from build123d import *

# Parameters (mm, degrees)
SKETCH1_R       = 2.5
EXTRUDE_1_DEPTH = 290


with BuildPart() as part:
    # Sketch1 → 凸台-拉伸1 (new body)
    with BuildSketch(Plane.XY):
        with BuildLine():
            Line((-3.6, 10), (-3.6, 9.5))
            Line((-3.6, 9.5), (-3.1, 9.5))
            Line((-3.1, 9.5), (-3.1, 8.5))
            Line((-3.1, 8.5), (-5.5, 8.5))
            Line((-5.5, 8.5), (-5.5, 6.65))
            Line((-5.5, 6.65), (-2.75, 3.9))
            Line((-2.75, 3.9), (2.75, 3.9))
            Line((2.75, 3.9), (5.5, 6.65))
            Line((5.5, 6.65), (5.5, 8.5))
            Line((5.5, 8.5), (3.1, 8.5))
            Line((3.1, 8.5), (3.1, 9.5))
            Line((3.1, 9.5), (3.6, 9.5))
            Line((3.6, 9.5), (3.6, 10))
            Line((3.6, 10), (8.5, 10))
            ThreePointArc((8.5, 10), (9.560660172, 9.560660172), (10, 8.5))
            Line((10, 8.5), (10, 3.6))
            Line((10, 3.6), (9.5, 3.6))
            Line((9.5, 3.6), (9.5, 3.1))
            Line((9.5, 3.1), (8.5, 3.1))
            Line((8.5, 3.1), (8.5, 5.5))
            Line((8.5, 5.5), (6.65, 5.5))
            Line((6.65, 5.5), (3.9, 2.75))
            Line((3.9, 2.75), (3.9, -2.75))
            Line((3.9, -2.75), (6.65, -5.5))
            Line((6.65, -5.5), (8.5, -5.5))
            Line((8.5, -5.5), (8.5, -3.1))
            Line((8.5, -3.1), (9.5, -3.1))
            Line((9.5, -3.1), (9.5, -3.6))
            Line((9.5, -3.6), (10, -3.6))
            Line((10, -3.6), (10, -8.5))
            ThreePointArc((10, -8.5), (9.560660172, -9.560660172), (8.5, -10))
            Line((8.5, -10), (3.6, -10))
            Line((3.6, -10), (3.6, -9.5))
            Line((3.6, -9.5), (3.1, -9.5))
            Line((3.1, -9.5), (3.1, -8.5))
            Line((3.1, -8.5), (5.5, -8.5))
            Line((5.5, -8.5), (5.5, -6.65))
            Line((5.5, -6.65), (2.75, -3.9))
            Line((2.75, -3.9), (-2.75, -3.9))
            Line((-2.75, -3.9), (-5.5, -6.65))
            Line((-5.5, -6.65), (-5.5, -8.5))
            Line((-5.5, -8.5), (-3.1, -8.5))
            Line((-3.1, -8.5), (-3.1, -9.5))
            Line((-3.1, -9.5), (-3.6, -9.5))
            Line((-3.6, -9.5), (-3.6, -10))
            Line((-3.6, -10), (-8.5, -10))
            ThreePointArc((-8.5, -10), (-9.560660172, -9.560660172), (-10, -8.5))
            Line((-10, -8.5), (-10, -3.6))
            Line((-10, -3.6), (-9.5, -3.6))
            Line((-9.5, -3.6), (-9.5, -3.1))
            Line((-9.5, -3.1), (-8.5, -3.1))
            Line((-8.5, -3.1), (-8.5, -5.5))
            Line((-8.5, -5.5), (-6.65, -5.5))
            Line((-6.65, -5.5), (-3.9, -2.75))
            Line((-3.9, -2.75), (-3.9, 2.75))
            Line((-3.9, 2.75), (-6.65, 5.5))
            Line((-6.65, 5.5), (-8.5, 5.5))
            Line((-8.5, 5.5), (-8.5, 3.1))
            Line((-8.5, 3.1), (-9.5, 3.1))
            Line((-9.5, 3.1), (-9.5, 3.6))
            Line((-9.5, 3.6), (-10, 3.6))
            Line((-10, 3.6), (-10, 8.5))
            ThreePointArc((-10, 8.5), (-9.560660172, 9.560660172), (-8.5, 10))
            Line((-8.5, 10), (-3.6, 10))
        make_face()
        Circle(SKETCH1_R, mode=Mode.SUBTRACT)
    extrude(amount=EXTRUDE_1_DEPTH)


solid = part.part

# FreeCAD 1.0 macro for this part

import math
import FreeCAD as App
import Part
import Sketcher

V = App.Vector

doc = App.newDocument("Part")
params = doc.addObject("Spreadsheet::Sheet", "Params")
for row, (alias, value) in enumerate([
    ("sketch1_diameter", "5 mm"),
    ("sketch1_radius", "1.5 mm"),
    ("sketch1_width", "1 mm"),
    ("sketch1_width2", "4.9 mm"),
    ("sketch1_width3", "2.4 mm"),
    ("pad1_length", "290 mm"),
], start=1):
    params.set(f"A{row}", alias)
    params.set(f"B{row}", "=" + value)
    params.setAlias(f"B{row}", alias)

body = doc.addObject("PartDesign::Body", "Body")

# Sketch on XY plane
sketch1 = doc.addObject("Sketcher::SketchObject", "Sketch")
body.addObject(sketch1)
sketch1.AttachmentSupport = (doc.XY_Plane, [""])
sketch1.MapMode = "FlatFace"
sketch1.addGeometry(Part.LineSegment(V(-3.6, 9.5, 0), V(-3.6, 10, 0)), False)
sketch1.addGeometry(Part.LineSegment(V(-3.6, 10, 0), V(-8.5, 10, 0)), False)
sketch1.addGeometry(Part.ArcOfCircle(Part.Circle(V(-8.5, 8.5, 0), V(0, 0, 1), 1.5), math.radians(90), math.radians(180)), False)
sketch1.addGeometry(Part.LineSegment(V(-10, 8.5, 0), V(-10, 3.6, 0)), False)
sketch1.addGeometry(Part.LineSegment(V(-10, 3.6, 0), V(-9.5, 3.6, 0)), False)
sketch1.addGeometry(Part.LineSegment(V(-9.5, 3.6, 0), V(-9.5, 3.1, 0)), False)
sketch1.addGeometry(Part.LineSegment(V(-9.5, 3.1, 0), V(-8.5, 3.1, 0)), False)
sketch1.addGeometry(Part.LineSegment(V(-8.5, 3.1, 0), V(-8.5, 5.5, 0)), False)
sketch1.addGeometry(Part.LineSegment(V(-8.5, 5.5, 0), V(-6.65, 5.5, 0)), False)
sketch1.addGeometry(Part.LineSegment(V(-6.65, 5.5, 0), V(-3.9, 2.75, 0)), False)
sketch1.addGeometry(Part.LineSegment(V(-3.9, 2.75, 0), V(-3.9, -2.75, 0)), False)
sketch1.addGeometry(Part.LineSegment(V(-3.9, -2.75, 0), V(-6.65, -5.5, 0)), False)
sketch1.addGeometry(Part.LineSegment(V(-6.65, -5.5, 0), V(-8.5, -5.5, 0)), False)
sketch1.addGeometry(Part.LineSegment(V(-8.5, -5.5, 0), V(-8.5, -3.1, 0)), False)
sketch1.addGeometry(Part.LineSegment(V(-8.5, -3.1, 0), V(-9.5, -3.1, 0)), False)
sketch1.addGeometry(Part.LineSegment(V(-9.5, -3.1, 0), V(-9.5, -3.6, 0)), False)
sketch1.addGeometry(Part.LineSegment(V(-9.5, -3.6, 0), V(-10, -3.6, 0)), False)
sketch1.addGeometry(Part.LineSegment(V(-10, -3.6, 0), V(-10, -8.5, 0)), False)
sketch1.addGeometry(Part.ArcOfCircle(Part.Circle(V(-8.5, -8.5, 0), V(0, 0, 1), 1.5), math.radians(180), math.radians(270)), False)
sketch1.addGeometry(Part.LineSegment(V(-8.5, -10, 0), V(-3.6, -10, 0)), False)
sketch1.addGeometry(Part.LineSegment(V(-3.6, -10, 0), V(-3.6, -9.5, 0)), False)
sketch1.addGeometry(Part.LineSegment(V(-3.6, -9.5, 0), V(-3.1, -9.5, 0)), False)
sketch1.addGeometry(Part.LineSegment(V(-3.1, -9.5, 0), V(-3.1, -8.5, 0)), False)
sketch1.addGeometry(Part.LineSegment(V(-3.1, -8.5, 0), V(-5.5, -8.5, 0)), False)
sketch1.addGeometry(Part.LineSegment(V(-5.5, -8.5, 0), V(-5.5, -6.65, 0)), False)
sketch1.addGeometry(Part.LineSegment(V(-5.5, -6.65, 0), V(-2.75, -3.9, 0)), False)
sketch1.addGeometry(Part.LineSegment(V(-2.75, -3.9, 0), V(2.75, -3.9, 0)), False)
sketch1.addGeometry(Part.LineSegment(V(2.75, -3.9, 0), V(5.5, -6.65, 0)), False)
sketch1.addGeometry(Part.LineSegment(V(5.5, -6.65, 0), V(5.5, -8.5, 0)), False)
sketch1.addGeometry(Part.LineSegment(V(5.5, -8.5, 0), V(3.1, -8.5, 0)), False)
sketch1.addGeometry(Part.LineSegment(V(3.1, -8.5, 0), V(3.1, -9.5, 0)), False)
sketch1.addGeometry(Part.LineSegment(V(3.1, -9.5, 0), V(3.6, -9.5, 0)), False)
sketch1.addGeometry(Part.LineSegment(V(3.6, -9.5, 0), V(3.6, -10, 0)), False)
sketch1.addGeometry(Part.LineSegment(V(3.6, -10, 0), V(8.5, -10, 0)), False)
sketch1.addGeometry(Part.ArcOfCircle(Part.Circle(V(8.5, -8.5, 0), V(0, 0, 1), 1.5), math.radians(-90), math.radians(0)), False)
sketch1.addGeometry(Part.LineSegment(V(10, -8.5, 0), V(10, -3.6, 0)), False)
sketch1.addGeometry(Part.LineSegment(V(10, -3.6, 0), V(9.5, -3.6, 0)), False)
sketch1.addGeometry(Part.LineSegment(V(9.5, -3.6, 0), V(9.5, -3.1, 0)), False)
sketch1.addGeometry(Part.LineSegment(V(9.5, -3.1, 0), V(8.5, -3.1, 0)), False)
sketch1.addGeometry(Part.LineSegment(V(8.5, -3.1, 0), V(8.5, -5.5, 0)), False)
sketch1.addGeometry(Part.LineSegment(V(8.5, -5.5, 0), V(6.65, -5.5, 0)), False)
sketch1.addGeometry(Part.LineSegment(V(6.65, -5.5, 0), V(3.9, -2.75, 0)), False)
sketch1.addGeometry(Part.LineSegment(V(3.9, -2.75, 0), V(3.9, 2.75, 0)), False)
sketch1.addGeometry(Part.LineSegment(V(3.9, 2.75, 0), V(6.65, 5.5, 0)), False)
sketch1.addGeometry(Part.LineSegment(V(6.65, 5.5, 0), V(8.5, 5.5, 0)), False)
sketch1.addGeometry(Part.LineSegment(V(8.5, 5.5, 0), V(8.5, 3.1, 0)), False)
sketch1.addGeometry(Part.LineSegment(V(8.5, 3.1, 0), V(9.5, 3.1, 0)), False)
sketch1.addGeometry(Part.LineSegment(V(9.5, 3.1, 0), V(9.5, 3.6, 0)), False)
sketch1.addGeometry(Part.LineSegment(V(9.5, 3.6, 0), V(10, 3.6, 0)), False)
sketch1.addGeometry(Part.LineSegment(V(10, 3.6, 0), V(10, 8.5, 0)), False)
sketch1.addGeometry(Part.ArcOfCircle(Part.Circle(V(8.5, 8.5, 0), V(0, 0, 1), 1.5), math.radians(0), math.radians(90)), False)
sketch1.addGeometry(Part.LineSegment(V(8.5, 10, 0), V(3.6, 10, 0)), False)
sketch1.addGeometry(Part.LineSegment(V(3.6, 10, 0), V(3.6, 9.5, 0)), False)
sketch1.addGeometry(Part.LineSegment(V(3.6, 9.5, 0), V(3.1, 9.5, 0)), False)
sketch1.addGeometry(Part.LineSegment(V(3.1, 9.5, 0), V(3.1, 8.5, 0)), False)
sketch1.addGeometry(Part.LineSegment(V(3.1, 8.5, 0), V(5.5, 8.5, 0)), False)
sketch1.addGeometry(Part.LineSegment(V(5.5, 8.5, 0), V(5.5, 6.65, 0)), False)
sketch1.addGeometry(Part.LineSegment(V(5.5, 6.65, 0), V(2.75, 3.9, 0)), False)
sketch1.addGeometry(Part.LineSegment(V(2.75, 3.9, 0), V(-2.75, 3.9, 0)), False)
sketch1.addGeometry(Part.LineSegment(V(-2.75, 3.9, 0), V(-5.5, 6.65, 0)), False)
sketch1.addGeometry(Part.LineSegment(V(-5.5, 6.65, 0), V(-5.5, 8.5, 0)), False)
sketch1.addGeometry(Part.LineSegment(V(-5.5, 8.5, 0), V(-3.1, 8.5, 0)), False)
sketch1.addGeometry(Part.LineSegment(V(-3.1, 8.5, 0), V(-3.1, 9.5, 0)), False)
sketch1.addGeometry(Part.LineSegment(V(-3.1, 9.5, 0), V(-3.6, 9.5, 0)), False)
sketch1.addGeometry(Part.Circle(V(0, 0, 0), V(0, 0, 1), 2.5), False)
sketch1.addConstraint(Sketcher.Constraint("Coincident", 0, 2, 1, 1))
sketch1.addConstraint(Sketcher.Constraint("Tangent", 1, 2, 2, 1))
sketch1.addConstraint(Sketcher.Constraint("Tangent", 2, 2, 3, 1))
sketch1.addConstraint(Sketcher.Constraint("Coincident", 3, 2, 4, 1))
sketch1.addConstraint(Sketcher.Constraint("Coincident", 4, 2, 5, 1))
sketch1.addConstraint(Sketcher.Constraint("Coincident", 5, 2, 6, 1))
sketch1.addConstraint(Sketcher.Constraint("Coincident", 6, 2, 7, 1))
sketch1.addConstraint(Sketcher.Constraint("Coincident", 7, 2, 8, 1))
sketch1.addConstraint(Sketcher.Constraint("Coincident", 8, 2, 9, 1))
sketch1.addConstraint(Sketcher.Constraint("Coincident", 9, 2, 10, 1))
sketch1.addConstraint(Sketcher.Constraint("Coincident", 10, 2, 11, 1))
sketch1.addConstraint(Sketcher.Constraint("Coincident", 11, 2, 12, 1))
sketch1.addConstraint(Sketcher.Constraint("Coincident", 12, 2, 13, 1))
sketch1.addConstraint(Sketcher.Constraint("Coincident", 13, 2, 14, 1))
sketch1.addConstraint(Sketcher.Constraint("Coincident", 14, 2, 15, 1))
sketch1.addConstraint(Sketcher.Constraint("Coincident", 15, 2, 16, 1))
sketch1.addConstraint(Sketcher.Constraint("Coincident", 16, 2, 17, 1))
sketch1.addConstraint(Sketcher.Constraint("Tangent", 17, 2, 18, 1))
sketch1.addConstraint(Sketcher.Constraint("Tangent", 18, 2, 19, 1))
sketch1.addConstraint(Sketcher.Constraint("Coincident", 19, 2, 20, 1))
sketch1.addConstraint(Sketcher.Constraint("Coincident", 20, 2, 21, 1))
sketch1.addConstraint(Sketcher.Constraint("Coincident", 21, 2, 22, 1))
sketch1.addConstraint(Sketcher.Constraint("Coincident", 22, 2, 23, 1))
sketch1.addConstraint(Sketcher.Constraint("Coincident", 23, 2, 24, 1))
sketch1.addConstraint(Sketcher.Constraint("Coincident", 24, 2, 25, 1))
sketch1.addConstraint(Sketcher.Constraint("Coincident", 25, 2, 26, 1))
sketch1.addConstraint(Sketcher.Constraint("Coincident", 26, 2, 27, 1))
sketch1.addConstraint(Sketcher.Constraint("Coincident", 27, 2, 28, 1))
sketch1.addConstraint(Sketcher.Constraint("Coincident", 28, 2, 29, 1))
sketch1.addConstraint(Sketcher.Constraint("Coincident", 29, 2, 30, 1))
sketch1.addConstraint(Sketcher.Constraint("Coincident", 30, 2, 31, 1))
sketch1.addConstraint(Sketcher.Constraint("Coincident", 31, 2, 32, 1))
sketch1.addConstraint(Sketcher.Constraint("Coincident", 32, 2, 33, 1))
sketch1.addConstraint(Sketcher.Constraint("Tangent", 33, 2, 34, 1))
sketch1.addConstraint(Sketcher.Constraint("Tangent", 34, 2, 35, 1))
sketch1.addConstraint(Sketcher.Constraint("Coincident", 35, 2, 36, 1))
sketch1.addConstraint(Sketcher.Constraint("Coincident", 36, 2, 37, 1))
sketch1.addConstraint(Sketcher.Constraint("Coincident", 37, 2, 38, 1))
sketch1.addConstraint(Sketcher.Constraint("Coincident", 38, 2, 39, 1))
sketch1.addConstraint(Sketcher.Constraint("Coincident", 39, 2, 40, 1))
sketch1.addConstraint(Sketcher.Constraint("Coincident", 40, 2, 41, 1))
sketch1.addConstraint(Sketcher.Constraint("Coincident", 41, 2, 42, 1))
sketch1.addConstraint(Sketcher.Constraint("Coincident", 42, 2, 43, 1))
sketch1.addConstraint(Sketcher.Constraint("Coincident", 43, 2, 44, 1))
sketch1.addConstraint(Sketcher.Constraint("Coincident", 44, 2, 45, 1))
sketch1.addConstraint(Sketcher.Constraint("Coincident", 45, 2, 46, 1))
sketch1.addConstraint(Sketcher.Constraint("Coincident", 46, 2, 47, 1))
sketch1.addConstraint(Sketcher.Constraint("Coincident", 47, 2, 48, 1))
sketch1.addConstraint(Sketcher.Constraint("Coincident", 48, 2, 49, 1))
sketch1.addConstraint(Sketcher.Constraint("Tangent", 49, 2, 50, 1))
sketch1.addConstraint(Sketcher.Constraint("Tangent", 50, 2, 51, 1))
sketch1.addConstraint(Sketcher.Constraint("Coincident", 51, 2, 52, 1))
sketch1.addConstraint(Sketcher.Constraint("Coincident", 52, 2, 53, 1))
sketch1.addConstraint(Sketcher.Constraint("Coincident", 53, 2, 54, 1))
sketch1.addConstraint(Sketcher.Constraint("Coincident", 54, 2, 55, 1))
sketch1.addConstraint(Sketcher.Constraint("Coincident", 55, 2, 56, 1))
sketch1.addConstraint(Sketcher.Constraint("Coincident", 56, 2, 57, 1))
sketch1.addConstraint(Sketcher.Constraint("Coincident", 57, 2, 58, 1))
sketch1.addConstraint(Sketcher.Constraint("Coincident", 58, 2, 59, 1))
sketch1.addConstraint(Sketcher.Constraint("Coincident", 59, 2, 60, 1))
sketch1.addConstraint(Sketcher.Constraint("Coincident", 60, 2, 61, 1))
sketch1.addConstraint(Sketcher.Constraint("Coincident", 61, 2, 62, 1))
sketch1.addConstraint(Sketcher.Constraint("Coincident", 62, 2, 63, 1))
sketch1.addConstraint(Sketcher.Constraint("Coincident", 63, 2, 0, 1))
sketch1.addConstraint(Sketcher.Constraint("Vertical", 0))
sketch1.addConstraint(Sketcher.Constraint("Horizontal", 1))
sketch1.addConstraint(Sketcher.Constraint("Vertical", 3))
sketch1.addConstraint(Sketcher.Constraint("Horizontal", 4))
sketch1.addConstraint(Sketcher.Constraint("Vertical", 5))
sketch1.addConstraint(Sketcher.Constraint("Horizontal", 6))
sketch1.addConstraint(Sketcher.Constraint("Vertical", 7))
sketch1.addConstraint(Sketcher.Constraint("Horizontal", 8))
sketch1.addConstraint(Sketcher.Constraint("Vertical", 10))
sketch1.addConstraint(Sketcher.Constraint("Horizontal", 12))
sketch1.addConstraint(Sketcher.Constraint("Vertical", 13))
sketch1.addConstraint(Sketcher.Constraint("Horizontal", 14))
sketch1.addConstraint(Sketcher.Constraint("Vertical", 15))
sketch1.addConstraint(Sketcher.Constraint("Horizontal", 16))
sketch1.addConstraint(Sketcher.Constraint("Vertical", 17))
sketch1.addConstraint(Sketcher.Constraint("Horizontal", 19))
sketch1.addConstraint(Sketcher.Constraint("Vertical", 20))
sketch1.addConstraint(Sketcher.Constraint("Horizontal", 21))
sketch1.addConstraint(Sketcher.Constraint("Vertical", 22))
sketch1.addConstraint(Sketcher.Constraint("Horizontal", 23))
sketch1.addConstraint(Sketcher.Constraint("Vertical", 24))
sketch1.addConstraint(Sketcher.Constraint("Horizontal", 26))
sketch1.addConstraint(Sketcher.Constraint("Vertical", 28))
sketch1.addConstraint(Sketcher.Constraint("Horizontal", 29))
sketch1.addConstraint(Sketcher.Constraint("Vertical", 30))
sketch1.addConstraint(Sketcher.Constraint("Horizontal", 31))
sketch1.addConstraint(Sketcher.Constraint("Vertical", 32))
sketch1.addConstraint(Sketcher.Constraint("Horizontal", 33))
sketch1.addConstraint(Sketcher.Constraint("Vertical", 35))
sketch1.addConstraint(Sketcher.Constraint("Horizontal", 36))
sketch1.addConstraint(Sketcher.Constraint("Vertical", 37))
sketch1.addConstraint(Sketcher.Constraint("Horizontal", 38))
sketch1.addConstraint(Sketcher.Constraint("Vertical", 39))
sketch1.addConstraint(Sketcher.Constraint("Horizontal", 40))
sketch1.addConstraint(Sketcher.Constraint("Vertical", 42))
sketch1.addConstraint(Sketcher.Constraint("Horizontal", 44))
sketch1.addConstraint(Sketcher.Constraint("Vertical", 45))
sketch1.addConstraint(Sketcher.Constraint("Horizontal", 46))
sketch1.addConstraint(Sketcher.Constraint("Vertical", 47))
sketch1.addConstraint(Sketcher.Constraint("Horizontal", 48))
sketch1.addConstraint(Sketcher.Constraint("Vertical", 49))
sketch1.addConstraint(Sketcher.Constraint("Horizontal", 51))
sketch1.addConstraint(Sketcher.Constraint("Vertical", 52))
sketch1.addConstraint(Sketcher.Constraint("Horizontal", 53))
sketch1.addConstraint(Sketcher.Constraint("Vertical", 54))
sketch1.addConstraint(Sketcher.Constraint("Horizontal", 55))
sketch1.addConstraint(Sketcher.Constraint("Vertical", 56))
sketch1.addConstraint(Sketcher.Constraint("Horizontal", 58))
sketch1.addConstraint(Sketcher.Constraint("Vertical", 60))
sketch1.addConstraint(Sketcher.Constraint("Horizontal", 61))
sketch1.addConstraint(Sketcher.Constraint("Vertical", 62))
sketch1.addConstraint(Sketcher.Constraint("Horizontal", 63))
sketch1.addConstraint(Sketcher.Constraint("Coincident", 64, 3, -1, 1))
sketch1.addConstraint(Sketcher.Constraint("Equal", 2, 18))
sketch1.addConstraint(Sketcher.Constraint("Equal", 18, 34))
sketch1.addConstraint(Sketcher.Constraint("Equal", 34, 50))
sketch1.addConstraint(Sketcher.Constraint("Symmetric", 2, 3, 34, 3, -1, 1))
sketch1.addConstraint(Sketcher.Constraint("Symmetric", 18, 3, 50, 3, -1, 1))
sketch1.addConstraint(Sketcher.Constraint("Symmetric", 4, 2, 36, 2, -1, 1))
sketch1.addConstraint(Sketcher.Constraint("Symmetric", 6, 2, 38, 2, -1, 1))
sketch1.addConstraint(Sketcher.Constraint("Symmetric", 8, 2, 40, 2, -1, 1))
sketch1.addConstraint(Sketcher.Constraint("Symmetric", 9, 2, 41, 2, -1, 1))
sketch1.addConstraint(Sketcher.Constraint("Symmetric", 11, 2, 43, 2, -1, 1))
sketch1.addConstraint(Sketcher.Constraint("Symmetric", 13, 2, 45, 2, -1, 1))
sketch1.addConstraint(Sketcher.Constraint("Symmetric", 15, 2, 47, 2, -1, 1))
sketch1.addConstraint(Sketcher.Constraint("Symmetric", 20, 2, 52, 2, -1, 1))
sketch1.addConstraint(Sketcher.Constraint("Symmetric", 22, 2, 54, 2, -1, 1))
sketch1.addConstraint(Sketcher.Constraint("Symmetric", 24, 2, 56, 2, -1, 1))
sketch1.addConstraint(Sketcher.Constraint("Symmetric", 25, 2, 57, 2, -1, 1))
sketch1.addConstraint(Sketcher.Constraint("Symmetric", 27, 2, 59, 2, -1, 1))
sketch1.addConstraint(Sketcher.Constraint("Symmetric", 29, 2, 61, 2, -1, 1))
sketch1.addConstraint(Sketcher.Constraint("Symmetric", 31, 2, 63, 2, -1, 1))
sketch1.addConstraint(Sketcher.Constraint("Symmetric", 18, 3, 34, 3, -2))
sketch1.addConstraint(Sketcher.Constraint("Symmetric", 24, 2, 27, 2, -2))
sketch1.addConstraint(Sketcher.Constraint("Symmetric", 22, 2, 29, 2, -2))
sketch1.addConstraint(Sketcher.Constraint("Symmetric", 20, 2, 31, 2, -2))
sketch1.addConstraint(Sketcher.Constraint("Symmetric", 15, 2, 36, 2, -2))
sketch1.addConstraint(Sketcher.Constraint("Symmetric", 13, 2, 38, 2, -2))
sketch1.addConstraint(Sketcher.Constraint("Symmetric", 11, 2, 40, 2, -2))
sketch1.addConstraint(Sketcher.Constraint("Perpendicular", 9, 11))
sketch1.addConstraint(Sketcher.Constraint("Parallel", 11, 25))
sketch1.addConstraint(Sketcher.Constraint("Perpendicular", 25, 27))
sketch1.addConstraint(Sketcher.Constraint("Perpendicular", 41, 43))
sketch1.addConstraint(Sketcher.Constraint("Perpendicular", 57, 59))
sketch1.addConstraint(Sketcher.Constraint("Horizontal", 17, 2, 22, 2))
sketch1.addConstraint(Sketcher.Constraint("Horizontal", 10, 2, 41, 2))
sketch1.addConstraint(Sketcher.Constraint("Vertical", 1, 2, 6, 2))
sketch1.addConstraint(Sketcher.Constraint("Equal", 16, 21))
sketch1.addConstraint(Sketcher.Constraint("Equal", 63, 0))
sketch1.addConstraint(Sketcher.Constraint("Equal", 51, 3))
sketch1.addConstraint(Sketcher.Constraint("Equal", 0, 5))
sketch1.addConstraint(Sketcher.Constraint("Equal", 61, 7))
sketch1.addConstraint(Sketcher.Constraint("Equal", 58, 10))
sketch1.addConstraint(Sketcher.Constraint("Equal", 44, 24))
sketch1.addConstraint(Sketcher.Constraint("Equal", 11, 25))
sketch1.addConstraint(Sketcher.Constraint("Diameter", 64, 5.0))
sketch1.addConstraint(Sketcher.Constraint("Radius", 2, 1.5))
sketch1.addConstraint(Sketcher.Constraint("DistanceX", 6, 1, 6, 2, 1.0))
sketch1.addConstraint(Sketcher.Constraint("DistanceX", 1, 2, 1, 1, 4.9))
sketch1.addConstraint(Sketcher.Constraint("DistanceX", 23, 2, 23, 1, 2.4))
sketch1.addConstraint(Sketcher.Constraint("DistanceX", 26, 1, 26, 2, 5.5))
sketch1.addConstraint(Sketcher.Constraint("DistanceY", -1, 1, 0, 2, 10.0))
sketch1.addConstraint(Sketcher.Constraint("DistanceX", 8, 1, 8, 2, 1.85))
sketch1.setExpression("Constraints[159]", "Params.sketch1_diameter")
sketch1.setExpression("Constraints[160]", "Params.sketch1_radius")
sketch1.setExpression("Constraints[161]", "Params.sketch1_width")
sketch1.setExpression("Constraints[162]", "Params.sketch1_width2")
sketch1.setExpression("Constraints[163]", "Params.sketch1_width3")
pad1 = doc.addObject("PartDesign::Pad", "Pad")
body.addObject(pad1)
pad1.Profile = sketch1
pad1.setExpression("Length", "Params.pad1_length")

doc.recompute()
